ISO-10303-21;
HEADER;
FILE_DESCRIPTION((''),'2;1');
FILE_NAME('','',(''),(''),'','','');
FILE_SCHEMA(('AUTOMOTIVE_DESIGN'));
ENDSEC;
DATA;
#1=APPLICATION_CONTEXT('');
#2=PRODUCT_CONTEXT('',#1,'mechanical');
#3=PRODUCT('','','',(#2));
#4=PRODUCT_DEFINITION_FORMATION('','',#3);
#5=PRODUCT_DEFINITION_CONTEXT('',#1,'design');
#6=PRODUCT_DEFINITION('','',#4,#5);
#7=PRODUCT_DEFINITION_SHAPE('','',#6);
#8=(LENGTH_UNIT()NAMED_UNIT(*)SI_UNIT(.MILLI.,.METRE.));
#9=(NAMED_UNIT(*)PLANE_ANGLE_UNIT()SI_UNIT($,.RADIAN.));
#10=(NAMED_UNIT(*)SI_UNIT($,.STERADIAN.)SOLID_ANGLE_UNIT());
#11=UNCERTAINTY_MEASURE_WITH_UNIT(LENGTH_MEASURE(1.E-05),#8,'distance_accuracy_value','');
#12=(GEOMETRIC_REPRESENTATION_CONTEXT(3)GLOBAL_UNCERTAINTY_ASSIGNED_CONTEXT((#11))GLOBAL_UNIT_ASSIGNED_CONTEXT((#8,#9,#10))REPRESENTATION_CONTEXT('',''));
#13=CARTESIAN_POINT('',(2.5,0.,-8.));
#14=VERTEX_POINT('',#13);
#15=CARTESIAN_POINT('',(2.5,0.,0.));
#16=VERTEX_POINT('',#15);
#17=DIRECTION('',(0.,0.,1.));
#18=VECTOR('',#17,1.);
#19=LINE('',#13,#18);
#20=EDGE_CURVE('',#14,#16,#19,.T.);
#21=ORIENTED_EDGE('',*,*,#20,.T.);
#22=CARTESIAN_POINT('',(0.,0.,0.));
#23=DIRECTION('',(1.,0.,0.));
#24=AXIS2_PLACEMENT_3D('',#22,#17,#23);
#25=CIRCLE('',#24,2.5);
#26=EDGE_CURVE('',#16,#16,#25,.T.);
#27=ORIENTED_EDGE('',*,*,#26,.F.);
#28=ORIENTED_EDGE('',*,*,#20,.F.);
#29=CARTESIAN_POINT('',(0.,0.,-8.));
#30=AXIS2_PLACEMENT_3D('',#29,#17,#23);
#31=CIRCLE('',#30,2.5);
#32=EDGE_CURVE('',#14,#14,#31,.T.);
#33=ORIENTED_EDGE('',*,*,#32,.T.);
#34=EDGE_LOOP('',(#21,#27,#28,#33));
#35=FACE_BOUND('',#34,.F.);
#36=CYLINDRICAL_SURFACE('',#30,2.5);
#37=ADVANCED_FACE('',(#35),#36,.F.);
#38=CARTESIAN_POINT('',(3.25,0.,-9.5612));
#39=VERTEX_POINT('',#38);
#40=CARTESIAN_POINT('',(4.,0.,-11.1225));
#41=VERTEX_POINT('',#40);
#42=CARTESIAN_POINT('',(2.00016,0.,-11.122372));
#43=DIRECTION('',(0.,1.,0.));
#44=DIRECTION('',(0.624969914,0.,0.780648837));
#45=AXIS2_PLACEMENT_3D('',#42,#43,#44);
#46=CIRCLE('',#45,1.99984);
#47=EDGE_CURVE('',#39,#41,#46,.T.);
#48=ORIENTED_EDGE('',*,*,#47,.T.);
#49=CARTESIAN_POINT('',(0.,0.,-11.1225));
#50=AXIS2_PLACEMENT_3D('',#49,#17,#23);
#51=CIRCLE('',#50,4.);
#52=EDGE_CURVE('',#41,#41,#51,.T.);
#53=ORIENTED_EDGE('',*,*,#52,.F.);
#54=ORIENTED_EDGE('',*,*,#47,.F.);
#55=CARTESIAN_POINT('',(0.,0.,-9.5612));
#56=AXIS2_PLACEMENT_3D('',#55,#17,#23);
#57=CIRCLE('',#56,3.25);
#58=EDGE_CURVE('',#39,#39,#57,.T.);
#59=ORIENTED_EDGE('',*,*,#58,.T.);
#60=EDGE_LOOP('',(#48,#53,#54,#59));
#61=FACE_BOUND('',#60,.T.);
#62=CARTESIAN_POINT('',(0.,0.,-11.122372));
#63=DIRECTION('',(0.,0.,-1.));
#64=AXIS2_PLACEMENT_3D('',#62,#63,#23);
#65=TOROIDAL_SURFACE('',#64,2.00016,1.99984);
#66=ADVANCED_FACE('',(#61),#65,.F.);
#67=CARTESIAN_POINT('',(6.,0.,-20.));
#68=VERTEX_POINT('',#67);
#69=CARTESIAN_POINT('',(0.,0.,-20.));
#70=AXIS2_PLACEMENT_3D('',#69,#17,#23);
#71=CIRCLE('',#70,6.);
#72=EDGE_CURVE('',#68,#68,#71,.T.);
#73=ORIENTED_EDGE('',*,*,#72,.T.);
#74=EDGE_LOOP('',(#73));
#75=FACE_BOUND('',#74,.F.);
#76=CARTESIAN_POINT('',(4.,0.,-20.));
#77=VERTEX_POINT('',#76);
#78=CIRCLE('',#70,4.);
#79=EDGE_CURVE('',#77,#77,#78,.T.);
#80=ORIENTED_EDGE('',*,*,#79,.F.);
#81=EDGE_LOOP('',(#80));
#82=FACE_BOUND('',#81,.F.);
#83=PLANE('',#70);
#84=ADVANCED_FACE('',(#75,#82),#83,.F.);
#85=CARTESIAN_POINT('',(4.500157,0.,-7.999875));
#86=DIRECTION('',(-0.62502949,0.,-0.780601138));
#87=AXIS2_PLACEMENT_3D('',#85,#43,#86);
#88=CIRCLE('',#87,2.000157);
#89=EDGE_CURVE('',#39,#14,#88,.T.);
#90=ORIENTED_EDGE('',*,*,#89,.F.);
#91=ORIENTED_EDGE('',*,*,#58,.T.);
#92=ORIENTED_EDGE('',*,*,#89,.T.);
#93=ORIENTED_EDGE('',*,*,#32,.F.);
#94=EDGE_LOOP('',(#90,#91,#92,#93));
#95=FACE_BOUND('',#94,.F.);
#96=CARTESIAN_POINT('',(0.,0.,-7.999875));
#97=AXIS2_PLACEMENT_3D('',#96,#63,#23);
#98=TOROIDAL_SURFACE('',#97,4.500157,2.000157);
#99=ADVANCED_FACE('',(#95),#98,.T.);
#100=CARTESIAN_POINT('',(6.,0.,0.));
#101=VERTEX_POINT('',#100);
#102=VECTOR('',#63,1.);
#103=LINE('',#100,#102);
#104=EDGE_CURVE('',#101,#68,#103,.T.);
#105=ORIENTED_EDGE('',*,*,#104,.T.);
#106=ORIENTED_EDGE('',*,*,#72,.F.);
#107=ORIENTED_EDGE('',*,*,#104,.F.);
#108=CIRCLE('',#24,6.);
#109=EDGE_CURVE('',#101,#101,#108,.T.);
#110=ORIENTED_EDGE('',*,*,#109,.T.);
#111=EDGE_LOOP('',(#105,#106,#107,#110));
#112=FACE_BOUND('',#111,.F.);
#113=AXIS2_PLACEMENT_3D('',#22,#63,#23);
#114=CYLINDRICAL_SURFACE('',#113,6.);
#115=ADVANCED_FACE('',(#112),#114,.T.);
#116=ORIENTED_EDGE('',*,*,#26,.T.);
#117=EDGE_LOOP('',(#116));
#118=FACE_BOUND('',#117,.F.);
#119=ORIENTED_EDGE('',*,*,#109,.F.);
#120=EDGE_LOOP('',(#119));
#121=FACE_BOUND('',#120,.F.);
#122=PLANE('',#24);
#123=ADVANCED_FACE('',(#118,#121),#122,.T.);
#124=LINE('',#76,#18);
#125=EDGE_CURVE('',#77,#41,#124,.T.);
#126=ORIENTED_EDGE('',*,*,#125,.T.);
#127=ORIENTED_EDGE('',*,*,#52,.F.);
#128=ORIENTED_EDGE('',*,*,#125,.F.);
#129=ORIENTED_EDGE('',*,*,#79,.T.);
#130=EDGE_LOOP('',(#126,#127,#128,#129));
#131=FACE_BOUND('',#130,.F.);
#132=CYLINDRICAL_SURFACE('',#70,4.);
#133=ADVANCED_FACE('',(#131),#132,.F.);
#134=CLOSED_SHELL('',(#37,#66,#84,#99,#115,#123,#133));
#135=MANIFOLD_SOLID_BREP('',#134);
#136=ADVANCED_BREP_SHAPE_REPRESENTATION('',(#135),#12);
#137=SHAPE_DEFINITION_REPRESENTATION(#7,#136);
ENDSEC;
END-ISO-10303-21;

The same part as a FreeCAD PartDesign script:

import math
import FreeCAD as App
import Part
import Sketcher
from FreeCAD import Vector
Q = App.Units.Quantity

doc = App.newDocument("Part")
body = doc.addObject("PartDesign::Body", "Body")

sketch1 = doc.addObject("Sketcher::SketchObject", "Sketch")
body.addObject(sketch1)
sketch1.AttachmentSupport = (doc.XZ_Plane, [""])
sketch1.MapMode = "FlatFace"
sketch1.addGeometry([
    Part.LineSegment(Vector(2.5, -8, 0), Vector(2.5, 0, 0)),
    Part.LineSegment(Vector(2.5, 0, 0), Vector(6, 0, 0)),
    Part.LineSegment(Vector(6, 0, 0), Vector(6, -20, 0)),
    Part.LineSegment(Vector(6, -20, 0), Vector(4, -20, 0)),
    Part.LineSegment(Vector(4, -20, 0), Vector(4, -11.1, 0)),
    Part.ArcOfCircle(Part.Circle(Vector(2, -11.1, 0), Vector(0, 0, 1), 2), math.radians(0), math.radians(51)),
    Part.ArcOfCircle(Part.Circle(Vector(4.5, -8, 0), Vector(0, 0, 1), 2), math.radians(180), math.radians(231)),
], False)
sketch1.addConstraint([
    Sketcher.Constraint("Coincident", 0, 2, 1, 1),
    Sketcher.Constraint("Coincident", 1, 2, 2, 1),
    Sketcher.Constraint("Coincident", 2, 2, 3, 1),
    Sketcher.Constraint("Coincident", 3, 2, 4, 1),
    Sketcher.Constraint("Tangent", 4, 2, 5, 1),
    Sketcher.Constraint("Tangent", 5, 2, 6, 2),
    Sketcher.Constraint("Tangent", 6, 1, 0, 1),
    Sketcher.Constraint("Vertical", 0),
    Sketcher.Constraint("Horizontal", 1),
    Sketcher.Constraint("Vertical", 2),
    Sketcher.Constraint("Horizontal", 3),
    Sketcher.Constraint("Vertical", 4),
    Sketcher.Constraint("Equal", 5, 6),
    Sketcher.Constraint("PointOnObject", 0, 2, -1),
    Sketcher.Constraint("Radius", 5, Q("2 mm")),
    Sketcher.Constraint("DistanceX", 3, 2, 3, 1, Q("2 mm")),
    Sketcher.Constraint("DistanceY", 2, 2, 2, 1, Q("20 mm")),
    Sketcher.Constraint("DistanceX", -1, 1, 5, 3, Q("2 mm")),
    Sketcher.Constraint("DistanceX", -1, 1, 0, 2, Q("2.5 mm")),
    Sketcher.Constraint("DistanceY", 0, 1, 0, 2, Q("8 mm")),
])
revolution = doc.addObject("PartDesign::Revolution", "Revolution")
body.addObject(revolution)
revolution.Profile = sketch1
revolution.ReferenceAxis = (sketch1, ["V_Axis"])
revolution.Angle = 360

doc.recompute()
